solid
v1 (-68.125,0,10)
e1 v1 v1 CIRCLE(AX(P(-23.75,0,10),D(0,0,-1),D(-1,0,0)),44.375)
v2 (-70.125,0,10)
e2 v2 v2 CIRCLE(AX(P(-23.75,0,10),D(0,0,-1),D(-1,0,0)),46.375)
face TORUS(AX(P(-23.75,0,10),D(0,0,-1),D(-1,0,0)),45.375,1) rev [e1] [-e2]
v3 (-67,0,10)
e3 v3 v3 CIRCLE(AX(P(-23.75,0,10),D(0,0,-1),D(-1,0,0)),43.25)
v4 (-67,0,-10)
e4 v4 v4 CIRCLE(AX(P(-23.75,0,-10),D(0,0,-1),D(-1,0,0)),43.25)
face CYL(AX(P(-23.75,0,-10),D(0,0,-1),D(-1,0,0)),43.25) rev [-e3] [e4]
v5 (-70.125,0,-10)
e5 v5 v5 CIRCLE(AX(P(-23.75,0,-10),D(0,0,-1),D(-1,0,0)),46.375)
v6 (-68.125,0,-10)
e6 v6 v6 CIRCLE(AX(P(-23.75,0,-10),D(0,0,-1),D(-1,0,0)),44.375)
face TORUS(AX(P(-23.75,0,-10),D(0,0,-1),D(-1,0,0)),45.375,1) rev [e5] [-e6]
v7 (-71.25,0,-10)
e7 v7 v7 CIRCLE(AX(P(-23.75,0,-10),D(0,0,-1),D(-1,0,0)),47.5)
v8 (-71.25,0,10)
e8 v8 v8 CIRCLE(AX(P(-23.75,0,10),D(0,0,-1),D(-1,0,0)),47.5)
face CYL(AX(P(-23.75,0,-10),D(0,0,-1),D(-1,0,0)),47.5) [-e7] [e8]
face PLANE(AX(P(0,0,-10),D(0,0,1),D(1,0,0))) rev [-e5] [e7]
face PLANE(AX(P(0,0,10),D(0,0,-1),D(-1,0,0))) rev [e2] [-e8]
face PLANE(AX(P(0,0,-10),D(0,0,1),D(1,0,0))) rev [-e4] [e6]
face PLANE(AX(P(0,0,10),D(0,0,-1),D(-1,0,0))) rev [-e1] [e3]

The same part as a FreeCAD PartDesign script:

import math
import FreeCAD as App
import Part
import Sketcher

V = App.Vector

doc = App.newDocument("Part")
body = doc.addObject("PartDesign::Body", "Body")

sketch1 = body.newObject("Sketcher::SketchObject", "Sketch")
sketch1.AttachmentSupport = (doc.getObject("XZ_Plane"), [""])
sketch1.MapMode = "FlatFace"
sketch1.addGeometry([
    Part.LineSegment(V(23.8, 10, 0), V(23.8, -10, 0)),
    Part.LineSegment(V(23.8, -10, 0), V(22.6, -10, 0)),
    Part.ArcOfCircle(Part.Circle(V(21.6, -10, 0), V(0, 0, 1), 1), math.radians(0), math.radians(180)),
    Part.LineSegment(V(20.6, -10, 0), V(19.5, -10, 0)),
    Part.LineSegment(V(19.5, -10, 0), V(19.5, 10, 0)),
    Part.LineSegment(V(19.5, 10, 0), V(20.6, 10, 0)),
    Part.ArcOfCircle(Part.Circle(V(21.6, 10, 0), V(0, 0, 1), 1), math.radians(180), math.radians(360)),
    Part.LineSegment(V(22.6, 10, 0), V(23.8, 10, 0)),
], False)
sketch1.addGeometry(Part.LineSegment(V(-23.8, -10, 0), V(-23.8, 10, 0)), True)
sketch1.addConstraint([
    Sketcher.Constraint("Coincident", 0, 2, 1, 1),
    Sketcher.Constraint("Coincident", 1, 2, 2, 1),
    Sketcher.Constraint("Coincident", 2, 2, 3, 1),
    Sketcher.Constraint("Coincident", 3, 2, 4, 1),
    Sketcher.Constraint("Coincident", 4, 2, 5, 1),
    Sketcher.Constraint("Coincident", 5, 2, 6, 1),
    Sketcher.Constraint("Coincident", 6, 2, 7, 1),
    Sketcher.Constraint("Coincident", 7, 2, 0, 1),
    Sketcher.Constraint("Vertical", 0),
    Sketcher.Constraint("Horizontal", 1),
    Sketcher.Constraint("Horizontal", 3),
    Sketcher.Constraint("Vertical", 4),
    Sketcher.Constraint("Horizontal", 5),
    Sketcher.Constraint("Horizontal", 7),
    Sketcher.Constraint("Vertical", 8),
    Sketcher.Constraint("Equal", 2, 6),
    Sketcher.Constraint("Symmetric", 7, 2, 8, 1, -1, 1),
    Sketcher.Constraint("Symmetric", 2, 3, 6, 3, -1),
    Sketcher.Constraint("Horizontal", 2, 3, 0, 2),
    Sketcher.Constraint("Horizontal", 1, 2, 2, 2),
    Sketcher.Constraint("Horizontal", 6, 3, 4, 2),
    Sketcher.Constraint("Horizontal", 5, 2, 6, 2),
    Sketcher.Constraint("Horizontal", 7, 2, 8, 2),
    Sketcher.Constraint("Equal", 1, 3),
    Sketcher.Constraint("Radius", 2, 1.0),
    Sketcher.Constraint("DistanceY", 0, 2, 0, 1, 20.0),
    Sketcher.Constraint("DistanceX", -1, 1, 3, 2, 19.5),
    Sketcher.Constraint("DistanceX", 8, 1, 0, 2, 47.5),
])
revolution = body.newObject("PartDesign::Revolution", "Revolution")
revolution.Profile = sketch1
revolution.ReferenceAxis = (sketch1, ["Axis0"])
revolution.Angle = 360

doc.recompute()
